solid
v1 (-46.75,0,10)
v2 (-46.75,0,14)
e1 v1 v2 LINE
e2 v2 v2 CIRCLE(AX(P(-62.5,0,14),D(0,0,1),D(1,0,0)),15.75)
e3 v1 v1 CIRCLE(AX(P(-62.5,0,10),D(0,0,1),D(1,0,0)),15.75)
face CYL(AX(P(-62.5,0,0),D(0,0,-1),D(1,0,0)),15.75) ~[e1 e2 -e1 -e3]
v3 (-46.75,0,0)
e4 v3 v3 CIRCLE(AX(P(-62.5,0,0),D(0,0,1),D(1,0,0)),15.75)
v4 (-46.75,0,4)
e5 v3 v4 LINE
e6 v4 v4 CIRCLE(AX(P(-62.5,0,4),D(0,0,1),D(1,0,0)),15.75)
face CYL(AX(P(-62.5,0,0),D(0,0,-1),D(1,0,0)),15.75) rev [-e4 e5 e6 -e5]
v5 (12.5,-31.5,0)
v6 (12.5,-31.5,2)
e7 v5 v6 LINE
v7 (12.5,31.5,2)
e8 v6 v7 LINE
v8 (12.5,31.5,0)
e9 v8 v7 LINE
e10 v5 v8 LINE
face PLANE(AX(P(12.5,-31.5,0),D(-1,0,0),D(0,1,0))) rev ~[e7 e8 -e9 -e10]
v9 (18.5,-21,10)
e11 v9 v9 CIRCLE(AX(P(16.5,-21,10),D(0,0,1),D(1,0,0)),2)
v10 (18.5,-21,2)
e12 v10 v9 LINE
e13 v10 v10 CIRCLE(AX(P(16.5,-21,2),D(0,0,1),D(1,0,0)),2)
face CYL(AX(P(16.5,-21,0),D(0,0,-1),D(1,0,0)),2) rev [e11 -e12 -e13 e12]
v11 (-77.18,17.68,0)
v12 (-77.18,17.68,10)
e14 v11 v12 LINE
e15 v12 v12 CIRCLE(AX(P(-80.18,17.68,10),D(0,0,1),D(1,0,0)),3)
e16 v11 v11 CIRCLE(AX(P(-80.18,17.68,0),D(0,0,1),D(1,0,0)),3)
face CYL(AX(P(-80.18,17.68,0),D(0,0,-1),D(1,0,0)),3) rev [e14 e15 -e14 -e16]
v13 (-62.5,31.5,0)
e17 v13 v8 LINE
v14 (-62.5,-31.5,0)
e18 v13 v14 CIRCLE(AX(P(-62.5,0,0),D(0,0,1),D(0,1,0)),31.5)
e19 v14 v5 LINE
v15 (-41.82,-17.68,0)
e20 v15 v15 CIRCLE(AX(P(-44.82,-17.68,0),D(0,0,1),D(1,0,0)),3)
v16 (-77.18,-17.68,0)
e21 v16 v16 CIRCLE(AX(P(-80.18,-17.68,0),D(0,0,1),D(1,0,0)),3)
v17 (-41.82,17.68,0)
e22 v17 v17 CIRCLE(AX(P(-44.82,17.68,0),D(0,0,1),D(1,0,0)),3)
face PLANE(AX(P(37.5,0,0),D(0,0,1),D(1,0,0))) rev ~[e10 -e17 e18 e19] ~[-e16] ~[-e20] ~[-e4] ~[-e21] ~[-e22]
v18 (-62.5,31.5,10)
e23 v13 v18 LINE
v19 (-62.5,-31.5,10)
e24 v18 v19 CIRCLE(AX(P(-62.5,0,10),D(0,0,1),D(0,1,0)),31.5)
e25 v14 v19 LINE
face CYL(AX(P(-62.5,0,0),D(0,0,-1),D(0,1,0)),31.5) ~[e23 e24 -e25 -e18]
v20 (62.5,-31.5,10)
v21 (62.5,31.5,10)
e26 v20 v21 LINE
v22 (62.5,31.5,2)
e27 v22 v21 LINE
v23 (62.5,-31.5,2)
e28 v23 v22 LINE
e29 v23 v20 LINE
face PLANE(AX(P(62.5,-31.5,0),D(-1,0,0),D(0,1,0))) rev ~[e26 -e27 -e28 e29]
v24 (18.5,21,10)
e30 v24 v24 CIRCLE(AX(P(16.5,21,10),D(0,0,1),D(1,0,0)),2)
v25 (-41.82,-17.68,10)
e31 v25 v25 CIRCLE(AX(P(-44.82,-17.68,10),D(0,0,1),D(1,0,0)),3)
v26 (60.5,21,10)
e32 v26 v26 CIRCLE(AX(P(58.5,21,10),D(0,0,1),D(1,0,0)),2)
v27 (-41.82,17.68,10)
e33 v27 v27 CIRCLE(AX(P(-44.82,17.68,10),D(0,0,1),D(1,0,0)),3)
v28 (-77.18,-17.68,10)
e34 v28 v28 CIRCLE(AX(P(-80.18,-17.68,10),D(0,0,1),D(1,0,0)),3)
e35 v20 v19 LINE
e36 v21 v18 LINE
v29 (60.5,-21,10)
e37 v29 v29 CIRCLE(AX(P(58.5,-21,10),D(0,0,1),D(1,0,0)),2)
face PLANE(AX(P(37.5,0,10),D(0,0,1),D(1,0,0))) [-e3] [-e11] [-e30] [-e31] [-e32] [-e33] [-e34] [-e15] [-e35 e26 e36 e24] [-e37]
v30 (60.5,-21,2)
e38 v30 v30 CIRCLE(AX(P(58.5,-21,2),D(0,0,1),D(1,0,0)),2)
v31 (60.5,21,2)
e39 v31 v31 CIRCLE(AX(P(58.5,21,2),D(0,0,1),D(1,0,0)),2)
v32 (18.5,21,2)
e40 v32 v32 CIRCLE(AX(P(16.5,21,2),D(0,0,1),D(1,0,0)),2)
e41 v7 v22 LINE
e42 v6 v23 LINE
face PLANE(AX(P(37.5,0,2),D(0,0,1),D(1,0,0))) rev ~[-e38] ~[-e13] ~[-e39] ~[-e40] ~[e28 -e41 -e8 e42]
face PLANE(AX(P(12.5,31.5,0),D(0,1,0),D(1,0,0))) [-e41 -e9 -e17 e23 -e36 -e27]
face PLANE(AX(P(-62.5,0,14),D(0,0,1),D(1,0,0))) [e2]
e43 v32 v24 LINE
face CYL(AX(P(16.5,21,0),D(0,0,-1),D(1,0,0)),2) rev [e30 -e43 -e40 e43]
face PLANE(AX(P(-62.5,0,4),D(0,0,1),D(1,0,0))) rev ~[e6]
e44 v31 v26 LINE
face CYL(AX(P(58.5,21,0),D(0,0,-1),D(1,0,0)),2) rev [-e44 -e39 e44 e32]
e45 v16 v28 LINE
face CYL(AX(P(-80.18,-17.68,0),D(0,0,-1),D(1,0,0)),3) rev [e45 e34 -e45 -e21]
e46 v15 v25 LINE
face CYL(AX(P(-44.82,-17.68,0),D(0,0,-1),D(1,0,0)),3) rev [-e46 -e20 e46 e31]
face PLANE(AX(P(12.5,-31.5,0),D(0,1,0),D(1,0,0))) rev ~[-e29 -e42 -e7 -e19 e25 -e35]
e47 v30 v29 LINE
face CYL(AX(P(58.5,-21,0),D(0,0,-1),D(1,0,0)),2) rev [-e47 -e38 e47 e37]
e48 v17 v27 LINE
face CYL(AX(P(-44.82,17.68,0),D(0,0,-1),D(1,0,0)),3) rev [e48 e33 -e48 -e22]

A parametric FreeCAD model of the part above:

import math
import FreeCAD as App
import Part
import Sketcher
Q = App.Units.Quantity


def add_polygon(sketch, points):
    """Adds a closed chain of lines whose ends are joined by coincident constraints."""
    first, n = sketch.GeometryCount, len(points)
    for a, b in zip(points, points[1:] + points[:1]):
        sketch.addGeometry(Part.LineSegment(App.Vector(*a, 0), App.Vector(*b, 0)), False)
    for i in range(n):
        sketch.addConstraint(Sketcher.Constraint("Coincident", first + i, 2, first + (i + 1) % n, 1))

doc = App.newDocument("Part")
params = doc.addObject("Spreadsheet::Sheet", "Params")
for row, (alias, value) in enumerate([
    ("sketch1_diameter", "6 mm"),
    ("sketch1_diameter2", "31.5 mm"),
    ("sketch1_radius", "31.5 mm"),
    ("sketch1_width", "75 mm"),
    ("pad1_length", "10 mm"),
    ("sketch2_diameter", "31.5 mm"),
    ("pad2_length", "14 mm"),
    ("sketch3_diameter", "4 mm"),
    ("sketch3_width", "50 mm"),
    ("sketch3_height", "63 mm"),
    ("pad3_length", "10 mm"),
    ("sketch4_diameter", "31.5 mm"),
    ("pocket1_length", "4 mm"),
    ("sketch5_diameter", "4 mm"),
    ("sketch5_width", "50 mm"),
    ("sketch5_height", "63 mm"),
    ("pocket2_length", "2 mm"),
], start=1):
    params.set(f"A{row}", alias)
    params.set(f"B{row}", "=" + value)
    params.setAlias(f"B{row}", alias)

body = doc.addObject("PartDesign::Body", "Body")

sketch1 = doc.addObject("Sketcher::SketchObject", "Sketch")
body.addObject(sketch1)
sketch1.AttachmentSupport = (doc.XY_Plane, [""])
sketch1.MapMode = "FlatFace"
sketch1.addGeometry([
    Part.LineSegment(App.Vector(-62.5, -31.5, 0), App.Vector(12.5, -31.5, 0)),
    Part.LineSegment(App.Vector(12.5, -31.5, 0), App.Vector(12.5, 31.5, 0)),
    Part.LineSegment(App.Vector(12.5, 31.5, 0), App.Vector(-62.5, 31.5, 0)),
    Part.ArcOfCircle(Part.Circle(App.Vector(-62.5, 0, 0), App.Vector(0, 0, 1), 31.5), math.radians(90), math.radians(270)),
    Part.Circle(App.Vector(-80.18, -17.68, 0), App.Vector(0, 0, 1), 3),
    Part.Circle(App.Vector(-44.82, -17.68, 0), App.Vector(0, 0, 1), 3),
    Part.Circle(App.Vector(-80.18, 17.68, 0), App.Vector(0, 0, 1), 3),
    Part.Circle(App.Vector(-62.5, 0, 0), App.Vector(0, 0, 1), 15.75),
    Part.Circle(App.Vector(-44.82, 17.68, 0), App.Vector(0, 0, 1), 3),
], False)
sketch1.addConstraint([
    Sketcher.Constraint("Coincident", 0, 2, 1, 1),
    Sketcher.Constraint("Coincident", 1, 2, 2, 1),
    Sketcher.Constraint("Tangent", 2, 2, 3, 1),
    Sketcher.Constraint("Tangent", 3, 2, 0, 1),
    Sketcher.Constraint("Horizontal", 0),
    Sketcher.Constraint("Vertical", 1),
    Sketcher.Constraint("Horizontal", 2),
    Sketcher.Constraint("Coincident", 7, 3, 3, 3),
    Sketcher.Constraint("Equal", 4, 5),
    Sketcher.Constraint("Equal", 5, 6),
    Sketcher.Constraint("Equal", 6, 8),
    Sketcher.Constraint("Symmetric", 4, 3, 6, 3, -1),
    Sketcher.Constraint("Symmetric", 5, 3, 8, 3, -1),
    Sketcher.Constraint("PointOnObject", 3, 3, -1),
    Sketcher.Constraint("Horizontal", 4, 3, 5, 3),
    Sketcher.Constraint("Diameter", 4, Q("6 mm")),
    Sketcher.Constraint("Diameter", 7, Q("31.5 mm")),
    Sketcher.Constraint("Radius", 3, Q("31.5 mm")),
    Sketcher.Constraint("DistanceX", 0, 1, 0, 2, Q("75 mm")),
    Sketcher.Constraint("DistanceX", 3, 3, -1, 1, Q("62.5 mm")),
    Sketcher.Constraint("DistanceX", 4, 3, -1, 1, Q("80.18 mm")),
    Sketcher.Constraint("DistanceY", 4, 3, -1, 1, Q("17.68 mm")),
    Sketcher.Constraint("DistanceX", 5, 3, -1, 1, Q("44.82 mm")),
])
sketch1.setExpression("Constraints[15]", "Params.sketch1_diameter")
sketch1.setExpression("Constraints[16]", "Params.sketch1_diameter2")
sketch1.setExpression("Constraints[17]", "Params.sketch1_radius")
sketch1.setExpression("Constraints[18]", "Params.sketch1_width")
pad1 = doc.addObject("PartDesign::Pad", "Pad")
body.addObject(pad1)
pad1.Profile = sketch1
pad1.setExpression("Length", "Params.pad1_length")

sketch2 = doc.addObject("Sketcher::SketchObject", "Sketch001")
body.addObject(sketch2)
sketch2.AttachmentSupport = (doc.XY_Plane, [""])
sketch2.MapMode = "FlatFace"
sketch2.addGeometry(Part.Circle(App.Vector(-62.5, 0, 0), App.Vector(0, 0, 1), 15.75), False)
sketch2.addConstraint([
    Sketcher.Constraint("PointOnObject", 0, 3, -1),
    Sketcher.Constraint("Diameter", 0, Q("31.5 mm")),
    Sketcher.Constraint("DistanceX", 0, 3, -1, 1, Q("62.5 mm")),
])
sketch2.setExpression("Constraints[1]", "Params.sketch2_diameter")
pad2 = doc.addObject("PartDesign::Pad", "Pad001")
body.addObject(pad2)
pad2.Profile = sketch2
pad2.setExpression("Length", "Params.pad2_length")

sketch3 = doc.addObject("Sketcher::SketchObject", "Sketch002")
body.addObject(sketch3)
sketch3.AttachmentSupport = (doc.XY_Plane, [""])
sketch3.MapMode = "FlatFace"
add_polygon(sketch3, [(12.5, 31.5), (12.5, -31.5), (62.5, -31.5), (62.5, 31.5)])
sketch3.addGeometry(Part.Circle(App.Vector(16.5, -21, 0), App.Vector(0, 0, 1), 2), False)
sketch3.addGeometry(Part.Circle(App.Vector(58.5, -21, 0), App.Vector(0, 0, 1), 2), False)
sketch3.addGeometry(Part.Circle(App.Vector(16.5, 21, 0), App.Vector(0, 0, 1), 2), False)
sketch3.addGeometry(Part.Circle(App.Vector(58.5, 21, 0), App.Vector(0, 0, 1), 2), False)
sketch3.addConstraint([
    Sketcher.Constraint("Vertical", 0),
    Sketcher.Constraint("Horizontal", 1),
    Sketcher.Constraint("Vertical", 2),
    Sketcher.Constraint("Horizontal", 3),
    Sketcher.Constraint("Equal", 4, 5),
    Sketcher.Constraint("Equal", 5, 6),
    Sketcher.Constraint("Equal", 6, 7),
    Sketcher.Constraint("Symmetric", 4, 3, 6, 3, -1),
    Sketcher.Constraint("Symmetric", 5, 3, 7, 3, -1),
    Sketcher.Constraint("Horizontal", 4, 3, 5, 3),
    Sketcher.Constraint("Diameter", 4, Q("4 mm")),
    Sketcher.Constraint("DistanceX", 1, 1, 1, 2, Q("50 mm")),
    Sketcher.Constraint("DistanceY", 0, 2, 0, 1, Q("63 mm")),
    Sketcher.Constraint("DistanceY", 4, 3, -1, 1, Q("21 mm")),
    Sketcher.Constraint("DistanceX", 4, 3, 5, 3, Q("42 mm")),
    Sketcher.Constraint("DistanceX", 0, 2, 4, 3, Q("4 mm")),
    Sketcher.Constraint("DistanceX", -1, 1, 4, 3, Q("16.5 mm")),
    Sketcher.Constraint("DistanceY", 0, 2, -1, 1, Q("31.5 mm")),
])
sketch3.setExpression("Constraints[14]", "Params.sketch3_diameter")
sketch3.setExpression("Constraints[15]", "Params.sketch3_width")
sketch3.setExpression("Constraints[16]", "Params.sketch3_height")
pad3 = doc.addObject("PartDesign::Pad", "Pad002")
body.addObject(pad3)
pad3.Profile = sketch3
pad3.setExpression("Length", "Params.pad3_length")

sketch4 = doc.addObject("Sketcher::SketchObject", "Sketch003")
body.addObject(sketch4)
sketch4.AttachmentSupport = (doc.XY_Plane, [""])
sketch4.MapMode = "FlatFace"
sketch4.addGeometry(Part.Circle(App.Vector(-62.5, 0, 0), App.Vector(0, 0, 1), 15.75), False)
sketch4.addConstraint([
    Sketcher.Constraint("PointOnObject", 0, 3, -1),
    Sketcher.Constraint("Diameter", 0, Q("31.5 mm")),
    Sketcher.Constraint("DistanceX", 0, 3, -1, 1, Q("62.5 mm")),
])
sketch4.setExpression("Constraints[1]", "Params.sketch4_diameter")
pocket1 = doc.addObject("PartDesign::Pocket", "Pocket")
body.addObject(pocket1)
pocket1.Profile = sketch4
pocket1.setExpression("Length", "Params.pocket1_length")
pocket1.Reversed = True

sketch5 = doc.addObject("Sketcher::SketchObject", "Sketch004")
body.addObject(sketch5)
sketch5.AttachmentSupport = (doc.XY_Plane, [""])
sketch5.MapMode = "FlatFace"
add_polygon(sketch5, [(12.5, 31.5), (12.5, -31.5), (62.5, -31.5), (62.5, 31.5)])
sketch5.addGeometry(Part.Circle(App.Vector(16.5, -21, 0), App.Vector(0, 0, 1), 2), False)
sketch5.addGeometry(Part.Circle(App.Vector(58.5, -21, 0), App.Vector(0, 0, 1), 2), False)
sketch5.addGeometry(Part.Circle(App.Vector(16.5, 21, 0), App.Vector(0, 0, 1), 2), False)
sketch5.addGeometry(Part.Circle(App.Vector(58.5, 21, 0), App.Vector(0, 0, 1), 2), False)
sketch5.addConstraint([
    Sketcher.Constraint("Vertical", 0),
    Sketcher.Constraint("Horizontal", 1),
    Sketcher.Constraint("Vertical", 2),
    Sketcher.Constraint("Horizontal", 3),
    Sketcher.Constraint("Equal", 4, 5),
    Sketcher.Constraint("Equal", 5, 6),
    Sketcher.Constraint("Equal", 6, 7),
    Sketcher.Constraint("Symmetric", 4, 3, 6, 3, -1),
    Sketcher.Constraint("Symmetric", 5, 3, 7, 3, -1),
    Sketcher.Constraint("Horizontal", 4, 3, 5, 3),
    Sketcher.Constraint("Diameter", 4, Q("4 mm")),
    Sketcher.Constraint("DistanceX", 1, 1, 1, 2, Q("50 mm")),
    Sketcher.Constraint("DistanceY", 0, 2, 0, 1, Q("63 mm")),
    Sketcher.Constraint("DistanceY", 4, 3, -1, 1, Q("21 mm")),
    Sketcher.Constraint("DistanceX", 4, 3, 5, 3, Q("42 mm")),
    Sketcher.Constraint("DistanceX", 0, 2, 4, 3, Q("4 mm")),
    Sketcher.Constraint("DistanceX", -1, 1, 4, 3, Q("16.5 mm")),
    Sketcher.Constraint("DistanceY", 0, 2, -1, 1, Q("31.5 mm")),
])
sketch5.setExpression("Constraints[14]", "Params.sketch5_diameter")
sketch5.setExpression("Constraints[15]", "Params.sketch5_width")
sketch5.setExpression("Constraints[16]", "Params.sketch5_height")
pocket2 = doc.addObject("PartDesign::Pocket", "Pocket001")
body.addObject(pocket2)
pocket2.Profile = sketch5
pocket2.setExpression("Length", "Params.pocket2_length")
pocket2.Reversed = True

doc.recompute()
